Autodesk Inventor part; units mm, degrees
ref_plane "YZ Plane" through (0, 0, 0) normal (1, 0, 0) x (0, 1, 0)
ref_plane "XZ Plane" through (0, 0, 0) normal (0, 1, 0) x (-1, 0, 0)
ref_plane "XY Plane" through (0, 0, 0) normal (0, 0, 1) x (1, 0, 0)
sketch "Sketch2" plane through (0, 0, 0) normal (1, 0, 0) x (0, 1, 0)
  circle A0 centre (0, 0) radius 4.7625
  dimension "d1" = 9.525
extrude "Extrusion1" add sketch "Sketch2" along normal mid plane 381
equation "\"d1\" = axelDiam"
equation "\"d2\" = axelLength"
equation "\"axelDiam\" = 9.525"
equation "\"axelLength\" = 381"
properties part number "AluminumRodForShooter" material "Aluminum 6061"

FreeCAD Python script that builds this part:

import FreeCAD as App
import Part
import Sketcher
Q = App.Units.Quantity

doc = App.newDocument("Part")
body = doc.addObject("PartDesign::Body", "Body")

# Sketch on YZ plane
sketch1 = doc.addObject("Sketcher::SketchObject", "Sketch")
body.addObject(sketch1)
sketch1.AttachmentSupport = (doc.YZ_Plane, [""])
sketch1.MapMode = "FlatFace"
sketch1.addGeometry(Part.Circle(App.Vector(0, 0, 0), App.Vector(0, 0, 1), 4.8), False)
sketch1.addConstraint(Sketcher.Constraint("Coincident", 0, 3, -1, 1))
sketch1.addConstraint(Sketcher.Constraint("Diameter", 0, Q("0.375 in")))
pad1 = doc.addObject("PartDesign::Pad", "Pad")
body.addObject(pad1)
pad1.Profile = sketch1
pad1.Length = Q("15 in")
pad1.Midplane = True

doc.recompute()
